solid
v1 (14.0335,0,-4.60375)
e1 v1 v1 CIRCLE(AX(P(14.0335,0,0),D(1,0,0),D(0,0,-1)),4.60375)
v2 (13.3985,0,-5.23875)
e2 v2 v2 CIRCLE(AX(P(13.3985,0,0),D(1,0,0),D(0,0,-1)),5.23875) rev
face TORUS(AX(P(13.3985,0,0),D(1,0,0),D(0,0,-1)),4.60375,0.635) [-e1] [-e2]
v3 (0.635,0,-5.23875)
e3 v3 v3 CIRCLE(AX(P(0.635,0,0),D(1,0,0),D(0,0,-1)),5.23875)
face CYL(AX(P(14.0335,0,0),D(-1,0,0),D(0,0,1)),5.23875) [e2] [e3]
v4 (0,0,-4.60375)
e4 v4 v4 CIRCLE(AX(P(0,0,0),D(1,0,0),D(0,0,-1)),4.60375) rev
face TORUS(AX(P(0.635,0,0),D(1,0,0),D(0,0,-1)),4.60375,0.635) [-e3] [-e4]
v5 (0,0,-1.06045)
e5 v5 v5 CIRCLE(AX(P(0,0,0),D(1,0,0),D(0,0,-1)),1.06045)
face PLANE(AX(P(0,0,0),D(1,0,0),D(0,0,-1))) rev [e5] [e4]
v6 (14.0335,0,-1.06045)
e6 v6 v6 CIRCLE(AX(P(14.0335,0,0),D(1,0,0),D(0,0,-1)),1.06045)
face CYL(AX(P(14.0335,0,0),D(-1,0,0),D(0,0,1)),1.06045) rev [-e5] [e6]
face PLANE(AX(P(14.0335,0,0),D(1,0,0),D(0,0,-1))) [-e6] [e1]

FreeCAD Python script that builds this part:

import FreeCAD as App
import Part
import Sketcher
from FreeCAD import Vector
Q = App.Units.Quantity


def edges_at(feature, points):
    """Names of the edges that pass closest to the given points."""
    edges = feature.Shape.Edges
    near = lambda p: min(range(len(edges)), key=lambda i: edges[i].distToShape(Part.Vertex(*p))[0])
    return sorted({f"Edge{near(p) + 1}" for p in points})

doc = App.newDocument("Part")
body = doc.addObject("PartDesign::Body", "Body")

# Sketch on YZ plane
sketch1 = body.newObject("Sketcher::SketchObject", "Sketch")
sketch1.AttachmentSupport = (doc.getObject("YZ_Plane"), [""])
sketch1.MapMode = "FlatFace"
sketch1.addGeometry(Part.Circle(Vector(0, 0, 0), Vector(0, 0, 1), 5.23875), False)
sketch1.addGeometry(Part.Circle(Vector(0, 0, 0), Vector(0, 0, 1), 1.06045), False)
sketch1.addConstraint(Sketcher.Constraint("Coincident", 0, 3, -1, 1))
sketch1.addConstraint(Sketcher.Constraint("Coincident", 1, 3, -1, 1))
sketch1.addConstraint(Sketcher.Constraint("Diameter", 0, Q("0.4125 in")))
sketch1.addConstraint(Sketcher.Constraint("Diameter", 1, Q("0.0835 in")))
pad1 = body.newObject("PartDesign::Pad", "Pad")
pad1.Profile = sketch1
pad1.Length = Q("0.5525 in")
doc.recompute()

fillet = body.newObject("PartDesign::Fillet", "Fillet")
fillet.Base = (pad1, edges_at(pad1, [(0, 0, 5.239), (14.034, 0, 5.239)]))
fillet.Radius = Q("0.025 in")

doc.recompute()
